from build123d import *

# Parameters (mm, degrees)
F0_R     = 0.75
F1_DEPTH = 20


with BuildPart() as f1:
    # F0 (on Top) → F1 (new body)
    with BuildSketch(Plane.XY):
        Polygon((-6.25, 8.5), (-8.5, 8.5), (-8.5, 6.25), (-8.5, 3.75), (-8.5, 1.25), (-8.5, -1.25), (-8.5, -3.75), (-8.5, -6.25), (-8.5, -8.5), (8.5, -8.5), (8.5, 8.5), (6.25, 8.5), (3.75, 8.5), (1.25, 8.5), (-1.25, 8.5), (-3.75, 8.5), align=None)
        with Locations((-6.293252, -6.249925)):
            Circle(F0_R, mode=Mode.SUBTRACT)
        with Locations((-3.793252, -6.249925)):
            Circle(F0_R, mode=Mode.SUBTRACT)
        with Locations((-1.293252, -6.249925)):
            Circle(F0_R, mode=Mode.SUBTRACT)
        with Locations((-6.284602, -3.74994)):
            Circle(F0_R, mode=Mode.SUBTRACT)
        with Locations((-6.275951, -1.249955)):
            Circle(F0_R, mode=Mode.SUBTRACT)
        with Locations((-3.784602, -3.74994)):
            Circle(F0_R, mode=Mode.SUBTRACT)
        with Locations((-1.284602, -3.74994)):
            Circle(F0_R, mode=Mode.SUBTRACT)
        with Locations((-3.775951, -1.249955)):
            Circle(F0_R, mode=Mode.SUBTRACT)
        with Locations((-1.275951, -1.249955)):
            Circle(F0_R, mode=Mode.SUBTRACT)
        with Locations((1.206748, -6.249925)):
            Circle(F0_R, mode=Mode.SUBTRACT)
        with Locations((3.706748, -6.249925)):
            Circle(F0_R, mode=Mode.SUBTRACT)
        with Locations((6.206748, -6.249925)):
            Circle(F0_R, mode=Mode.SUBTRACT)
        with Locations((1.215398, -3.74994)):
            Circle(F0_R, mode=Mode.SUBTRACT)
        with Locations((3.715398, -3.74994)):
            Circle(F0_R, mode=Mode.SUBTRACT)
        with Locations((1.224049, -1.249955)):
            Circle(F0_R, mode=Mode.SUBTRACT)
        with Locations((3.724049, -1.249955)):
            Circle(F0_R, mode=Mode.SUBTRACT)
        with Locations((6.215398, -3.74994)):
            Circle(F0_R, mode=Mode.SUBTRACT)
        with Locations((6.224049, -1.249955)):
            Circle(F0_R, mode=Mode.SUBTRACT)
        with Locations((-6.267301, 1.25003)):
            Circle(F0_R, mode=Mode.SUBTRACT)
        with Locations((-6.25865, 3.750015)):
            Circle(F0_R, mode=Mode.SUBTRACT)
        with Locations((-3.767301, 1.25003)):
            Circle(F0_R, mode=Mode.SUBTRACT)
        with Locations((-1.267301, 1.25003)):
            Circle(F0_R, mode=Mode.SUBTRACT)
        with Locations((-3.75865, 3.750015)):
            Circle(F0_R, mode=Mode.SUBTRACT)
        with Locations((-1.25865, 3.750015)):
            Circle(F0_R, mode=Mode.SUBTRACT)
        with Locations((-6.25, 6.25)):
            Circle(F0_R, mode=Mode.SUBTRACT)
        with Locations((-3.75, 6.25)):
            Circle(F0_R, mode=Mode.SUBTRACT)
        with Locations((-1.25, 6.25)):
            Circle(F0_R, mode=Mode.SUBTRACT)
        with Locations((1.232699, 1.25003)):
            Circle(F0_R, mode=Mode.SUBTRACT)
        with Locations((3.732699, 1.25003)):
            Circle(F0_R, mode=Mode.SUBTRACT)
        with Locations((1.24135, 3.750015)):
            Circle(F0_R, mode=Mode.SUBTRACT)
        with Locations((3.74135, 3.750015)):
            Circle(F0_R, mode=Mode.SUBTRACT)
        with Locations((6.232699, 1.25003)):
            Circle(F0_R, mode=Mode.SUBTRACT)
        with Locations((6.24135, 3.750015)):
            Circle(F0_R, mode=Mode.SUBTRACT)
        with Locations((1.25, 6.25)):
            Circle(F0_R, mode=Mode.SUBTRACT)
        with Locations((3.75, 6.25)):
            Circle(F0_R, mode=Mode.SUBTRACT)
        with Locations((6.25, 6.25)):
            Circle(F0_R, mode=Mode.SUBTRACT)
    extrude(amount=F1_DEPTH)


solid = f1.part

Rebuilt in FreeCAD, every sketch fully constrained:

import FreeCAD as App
import Part
import Sketcher

V = App.Vector
Q = App.Units.Quantity


def add_polygon(sketch, points):
    """Adds a closed chain of lines whose ends are joined by coincident constraints."""
    first, n = sketch.GeometryCount, len(points)
    for a, b in zip(points, points[1:] + points[:1]):
        sketch.addGeometry(Part.LineSegment(App.Vector(*a, 0), App.Vector(*b, 0)), False)
    for i in range(n):
        sketch.addConstraint(Sketcher.Constraint("Coincident", first + i, 2, first + (i + 1) % n, 1))

doc = App.newDocument("Part")
body = doc.addObject("PartDesign::Body", "Body")

sketch1 = doc.addObject("Sketcher::SketchObject", "Sketch")
body.addObject(sketch1)
sketch1.AttachmentSupport = (doc.XY_Plane, [""])
sketch1.MapMode = "FlatFace"
add_polygon(sketch1, [(-8.5, 8.5), (-8.5, -8.5), (8.5, -8.5), (8.5, 8.5)])
sketch1.addGeometry(Part.Circle(V(-6.293252, -6.249925, 0), V(0, 0, 1), 0.75), False)
sketch1.addGeometry(Part.Circle(V(-3.793252, -6.249925, 0), V(0, 0, 1), 0.75), False)
sketch1.addGeometry(Part.Circle(V(-6.284602, -3.74994, 0), V(0, 0, 1), 0.75), False)
sketch1.addGeometry(Part.Circle(V(-3.784602, -3.74994, 0), V(0, 0, 1), 0.75), False)
sketch1.addGeometry(Part.Circle(V(-1.293252, -6.249925, 0), V(0, 0, 1), 0.75), False)
sketch1.addGeometry(Part.Circle(V(-1.284602, -3.74994, 0), V(0, 0, 1), 0.75), False)
sketch1.addGeometry(Part.Circle(V(-6.275951, -1.249955, 0), V(0, 0, 1), 0.75), False)
sketch1.addGeometry(Part.Circle(V(-3.775951, -1.249955, 0), V(0, 0, 1), 0.75), False)
sketch1.addGeometry(Part.Circle(V(-1.275951, -1.249955, 0), V(0, 0, 1), 0.75), False)
sketch1.addGeometry(Part.Circle(V(1.206748, -6.249925, 0), V(0, 0, 1), 0.75), False)
sketch1.addGeometry(Part.Circle(V(1.215398, -3.74994, 0), V(0, 0, 1), 0.75), False)
sketch1.addGeometry(Part.Circle(V(3.706748, -6.249925, 0), V(0, 0, 1), 0.75), False)
sketch1.addGeometry(Part.Circle(V(6.206748, -6.249925, 0), V(0, 0, 1), 0.75), False)
sketch1.addGeometry(Part.Circle(V(3.715398, -3.74994, 0), V(0, 0, 1), 0.75), False)
sketch1.addGeometry(Part.Circle(V(6.215398, -3.74994, 0), V(0, 0, 1), 0.75), False)
sketch1.addGeometry(Part.Circle(V(1.224049, -1.249955, 0), V(0, 0, 1), 0.75), False)
sketch1.addGeometry(Part.Circle(V(3.724049, -1.249955, 0), V(0, 0, 1), 0.75), False)
sketch1.addGeometry(Part.Circle(V(6.224049, -1.249955, 0), V(0, 0, 1), 0.75), False)
sketch1.addGeometry(Part.Circle(V(-6.267301, 1.25003, 0), V(0, 0, 1), 0.75), False)
sketch1.addGeometry(Part.Circle(V(-3.767301, 1.25003, 0), V(0, 0, 1), 0.75), False)
sketch1.addGeometry(Part.Circle(V(-1.267301, 1.25003, 0), V(0, 0, 1), 0.75), False)
sketch1.addGeometry(Part.Circle(V(-6.25865, 3.750015, 0), V(0, 0, 1), 0.75), False)
sketch1.addGeometry(Part.Circle(V(-3.75865, 3.750015, 0), V(0, 0, 1), 0.75), False)
sketch1.addGeometry(Part.Circle(V(-6.25, 6.25, 0), V(0, 0, 1), 0.75), False)
sketch1.addGeometry(Part.Circle(V(-3.75, 6.25, 0), V(0, 0, 1), 0.75), False)
sketch1.addGeometry(Part.Circle(V(-1.25865, 3.750015, 0), V(0, 0, 1), 0.75), False)
sketch1.addGeometry(Part.Circle(V(-1.25, 6.25, 0), V(0, 0, 1), 0.75), False)
sketch1.addGeometry(Part.Circle(V(1.232699, 1.25003, 0), V(0, 0, 1), 0.75), False)
sketch1.addGeometry(Part.Circle(V(3.732699, 1.25003, 0), V(0, 0, 1), 0.75), False)
sketch1.addGeometry(Part.Circle(V(6.232699, 1.25003, 0), V(0, 0, 1), 0.75), False)
sketch1.addGeometry(Part.Circle(V(1.24135, 3.750015, 0), V(0, 0, 1), 0.75), False)
sketch1.addGeometry(Part.Circle(V(1.25, 6.25, 0), V(0, 0, 1), 0.75), False)
sketch1.addGeometry(Part.Circle(V(3.74135, 3.750015, 0), V(0, 0, 1), 0.75), False)
sketch1.addGeometry(Part.Circle(V(6.24135, 3.750015, 0), V(0, 0, 1), 0.75), False)
sketch1.addGeometry(Part.Circle(V(3.75, 6.25, 0), V(0, 0, 1), 0.75), False)
sketch1.addGeometry(Part.Circle(V(6.25, 6.25, 0), V(0, 0, 1), 0.75), False)
sketch1.addConstraint(Sketcher.Constraint("Vertical", 0))
sketch1.addConstraint(Sketcher.Constraint("Horizontal", 1))
sketch1.addConstraint(Sketcher.Constraint("Vertical", 2))
sketch1.addConstraint(Sketcher.Constraint("Horizontal", 3))
sketch1.addConstraint(Sketcher.Constraint("Equal", 4, 5))
sketch1.addConstraint(Sketcher.Constraint("Equal", 5, 6))
sketch1.addConstraint(Sketcher.Constraint("Equal", 6, 7))
sketch1.addConstraint(Sketcher.Constraint("Equal", 7, 8))
sketch1.addConstraint(Sketcher.Constraint("Equal", 8, 9))
sketch1.addConstraint(Sketcher.Constraint("Equal", 9, 10))
sketch1.addConstraint(Sketcher.Constraint("Equal", 10, 11))
sketch1.addConstraint(Sketcher.Constraint("Equal", 11, 12))
sketch1.addConstraint(Sketcher.Constraint("Equal", 12, 13))
sketch1.addConstraint(Sketcher.Constraint("Equal", 13, 14))
sketch1.addConstraint(Sketcher.Constraint("Equal", 14, 15))
sketch1.addConstraint(Sketcher.Constraint("Equal", 15, 16))
sketch1.addConstraint(Sketcher.Constraint("Equal", 16, 17))
sketch1.addConstraint(Sketcher.Constraint("Equal", 17, 18))
sketch1.addConstraint(Sketcher.Constraint("Equal", 18, 19))
sketch1.addConstraint(Sketcher.Constraint("Equal", 19, 20))
sketch1.addConstraint(Sketcher.Constraint("Equal", 20, 21))
sketch1.addConstraint(Sketcher.Constraint("Equal", 21, 22))
sketch1.addConstraint(Sketcher.Constraint("Equal", 22, 23))
sketch1.addConstraint(Sketcher.Constraint("Equal", 23, 24))
sketch1.addConstraint(Sketcher.Constraint("Equal", 24, 25))
sketch1.addConstraint(Sketcher.Constraint("Equal", 25, 26))
sketch1.addConstraint(Sketcher.Constraint("Equal", 26, 27))
sketch1.addConstraint(Sketcher.Constraint("Equal", 27, 28))
sketch1.addConstraint(Sketcher.Constraint("Equal", 28, 29))
sketch1.addConstraint(Sketcher.Constraint("Equal", 29, 30))
sketch1.addConstraint(Sketcher.Constraint("Equal", 30, 31))
sketch1.addConstraint(Sketcher.Constraint("Equal", 31, 32))
sketch1.addConstraint(Sketcher.Constraint("Equal", 32, 33))
sketch1.addConstraint(Sketcher.Constraint("Equal", 33, 34))
sketch1.addConstraint(Sketcher.Constraint("Equal", 34, 35))
sketch1.addConstraint(Sketcher.Constraint("Equal", 35, 36))
sketch1.addConstraint(Sketcher.Constraint("Equal", 36, 37))
sketch1.addConstraint(Sketcher.Constraint("Equal", 37, 38))
sketch1.addConstraint(Sketcher.Constraint("Equal", 38, 39))
sketch1.addConstraint(Sketcher.Constraint("Symmetric", 0, 2, 2, 2, -1, 1))
sketch1.addConstraint(Sketcher.Constraint("Symmetric", 30, 3, 35, 3, -2))
sketch1.addConstraint(Sketcher.Constraint("Symmetric", 28, 3, 38, 3, -2))
sketch1.addConstraint(Sketcher.Constraint("Symmetric", 27, 3, 39, 3, -2))
sketch1.addConstraint(Sketcher.Constraint("Horizontal", 4, 3, 5, 3))
sketch1.addConstraint(Sketcher.Constraint("Horizontal", 6, 3, 7, 3))
sketch1.addConstraint(Sketcher.Constraint("Horizontal", 5, 3, 8, 3))
sketch1.addConstraint(Sketcher.Constraint("Horizontal", 7, 3, 9, 3))
sketch1.addConstraint(Sketcher.Constraint("Horizontal", 10, 3, 11, 3))
sketch1.addConstraint(Sketcher.Constraint("Horizontal", 11, 3, 12, 3))
sketch1.addConstraint(Sketcher.Constraint("Horizontal", 8, 3, 13, 3))
sketch1.addConstraint(Sketcher.Constraint("Horizontal", 9, 3, 14, 3))
sketch1.addConstraint(Sketcher.Constraint("Horizontal", 13, 3, 15, 3))
sketch1.addConstraint(Sketcher.Constraint("Horizontal", 15, 3, 16, 3))
sketch1.addConstraint(Sketcher.Constraint("Horizontal", 14, 3, 17, 3))
sketch1.addConstraint(Sketcher.Constraint("Horizontal", 17, 3, 18, 3))
sketch1.addConstraint(Sketcher.Constraint("Horizontal", 12, 3, 19, 3))
sketch1.addConstraint(Sketcher.Constraint("Horizontal", 19, 3, 20, 3))
sketch1.addConstraint(Sketcher.Constraint("Horizontal", 20, 3, 21, 3))
sketch1.addConstraint(Sketcher.Constraint("Horizontal", 22, 3, 23, 3))
sketch1.addConstraint(Sketcher.Constraint("Horizontal", 23, 3, 24, 3))
sketch1.addConstraint(Sketcher.Constraint("Horizontal", 25, 3, 26, 3))
sketch1.addConstraint(Sketcher.Constraint("Horizontal", 27, 3, 28, 3))
sketch1.addConstraint(Sketcher.Constraint("Horizontal", 26, 3, 29, 3))
sketch1.addConstraint(Sketcher.Constraint("Horizontal", 28, 3, 30, 3))
sketch1.addConstraint(Sketcher.Constraint("Horizontal", 24, 3, 31, 3))
sketch1.addConstraint(Sketcher.Constraint("Horizontal", 31, 3, 32, 3))
sketch1.addConstraint(Sketcher.Constraint("Horizontal", 32, 3, 33, 3))
sketch1.addConstraint(Sketcher.Constraint("Horizontal", 29, 3, 34, 3))
sketch1.addConstraint(Sketcher.Constraint("Horizontal", 34, 3, 36, 3))
sketch1.addConstraint(Sketcher.Constraint("Horizontal", 36, 3, 37, 3))
sketch1.addConstraint(Sketcher.Constraint("Equal", 3, 0))
sketch1.addConstraint(Sketcher.Constraint("Diameter", 4, Q("1.5 mm")))
sketch1.addConstraint(Sketcher.Constraint("DistanceX", 1, 1, 1, 2, Q("17 mm")))
sketch1.addConstraint(Sketcher.Constraint("DistanceX", 4, 3, 8, 3, Q("5 mm")))
sketch1.addConstraint(Sketcher.Constraint("DistanceX", 6, 3, 9, 3, Q("5 mm")))
sketch1.addConstraint(Sketcher.Constraint("DistanceX", 10, 3, 12, 3, Q("5 mm")))
sketch1.addConstraint(Sketcher.Constraint("DistanceX", 5, 3, 13, 3, Q("5 mm")))
sketch1.addConstraint(Sketcher.Constraint("DistanceX", 7, 3, 14, 3, Q("5 mm")))
sketch1.addConstraint(Sketcher.Constraint("DistanceX", 8, 3, 15, 3, Q("5 mm")))
sketch1.addConstraint(Sketcher.Constraint("DistanceX", 13, 3, 16, 3, Q("5 mm")))
sketch1.addConstraint(Sketcher.Constraint("DistanceX", 9, 3, 17, 3, Q("5 mm")))
sketch1.addConstraint(Sketcher.Constraint("DistanceX", 14, 3, 18, 3, Q("5 mm")))
sketch1.addConstraint(Sketcher.Constraint("DistanceX", 19, 3, 21, 3, Q("5 mm")))
sketch1.addConstraint(Sketcher.Constraint("DistanceX", 27, 3, 30, 3, Q("5 mm")))
sketch1.addConstraint(Sketcher.Constraint("DistanceX", 31, 3, 33, 3, Q("5 mm")))
sketch1.addConstraint(Sketcher.Constraint("DistanceX", 28, 3, 35, 3, Q("5 mm")))
sketch1.addConstraint(Sketcher.Constraint("DistanceX", 34, 3, 37, 3, Q("5 mm")))
sketch1.addConstraint(Sketcher.Constraint("DistanceX", 4, 3, 5, 3, Q("2.5 mm")))
sketch1.addConstraint(Sketcher.Constraint("DistanceX", 6, 3, 7, 3, Q("2.5 mm")))
sketch1.addConstraint(Sketcher.Constraint("DistanceX", 10, 3, 11, 3, Q("2.5 mm")))
sketch1.addConstraint(Sketcher.Constraint("DistanceX", 12, 3, 19, 3, Q("2.5 mm")))
sketch1.addConstraint(Sketcher.Constraint("DistanceX", 19, 3, 20, 3, Q("2.5 mm")))
sketch1.addConstraint(Sketcher.Constraint("DistanceX", 22, 3, 23, 3, Q("2.5 mm")))
sketch1.addConstraint(Sketcher.Constraint("DistanceX", 23, 3, 24, 3, Q("2.5 mm")))
sketch1.addConstraint(Sketcher.Constraint("DistanceX", 25, 3, 26, 3, Q("2.5 mm")))
sketch1.addConstraint(Sketcher.Constraint("DistanceX", 27, 3, 28, 3, Q("2.5 mm")))
sketch1.addConstraint(Sketcher.Constraint("DistanceX", 26, 3, 29, 3, Q("2.5 mm")))
sketch1.addConstraint(Sketcher.Constraint("DistanceX", 24, 3, 31, 3, Q("2.5 mm")))
sketch1.addConstraint(Sketcher.Constraint("DistanceX", 31, 3, 32, 3, Q("2.5 mm")))
sketch1.addConstraint(Sketcher.Constraint("DistanceX", 29, 3, 34, 3, Q("2.5 mm")))
sketch1.addConstraint(Sketcher.Constraint("DistanceX", 34, 3, 36, 3, Q("2.5 mm")))
sketch1.addConstraint(Sketcher.Constraint("DistanceY", -1, 1, 27, 3, Q("6.25 mm")))
sketch1.addConstraint(Sketcher.Constraint("DistanceX", 6, 3, -1, 1, Q("6.284602 mm")))
sketch1.addConstraint(Sketcher.Constraint("DistanceX", 22, 3, -1, 1, Q("6.267301 mm")))
sketch1.addConstraint(Sketcher.Constraint("DistanceX", 4, 3, 10, 3, Q("0.017301 mm")))
sketch1.addConstraint(Sketcher.Constraint("DistanceX", 10, 3, 25, 3, Q("0.017301 mm")))
sketch1.addConstraint(Sketcher.Constraint("DistanceX", 5, 3, -1, 1, Q("3.793252 mm")))
sketch1.addConstraint(Sketcher.Constraint("DistanceY", 6, 3, -1, 1, Q("3.74994 mm")))
sketch1.addConstraint(Sketcher.Constraint("DistanceY", -1, 1, 22, 3, Q("1.25003 mm")))
sketch1.addConstraint(Sketcher.Constraint("DistanceY", 4, 3, 10, 3, Q("4.99997 mm")))
sketch1.addConstraint(Sketcher.Constraint("DistanceY", 10, 3, 25, 3, Q("4.99997 mm")))
sketch1.addConstraint(Sketcher.Constraint("DistanceY", 4, 3, -1, 1, Q("6.249925 mm")))
pad1 = doc.addObject("PartDesign::Pad", "Pad")
body.addObject(pad1)
pad1.Profile = sketch1
pad1.Length = 20

doc.recompute()
